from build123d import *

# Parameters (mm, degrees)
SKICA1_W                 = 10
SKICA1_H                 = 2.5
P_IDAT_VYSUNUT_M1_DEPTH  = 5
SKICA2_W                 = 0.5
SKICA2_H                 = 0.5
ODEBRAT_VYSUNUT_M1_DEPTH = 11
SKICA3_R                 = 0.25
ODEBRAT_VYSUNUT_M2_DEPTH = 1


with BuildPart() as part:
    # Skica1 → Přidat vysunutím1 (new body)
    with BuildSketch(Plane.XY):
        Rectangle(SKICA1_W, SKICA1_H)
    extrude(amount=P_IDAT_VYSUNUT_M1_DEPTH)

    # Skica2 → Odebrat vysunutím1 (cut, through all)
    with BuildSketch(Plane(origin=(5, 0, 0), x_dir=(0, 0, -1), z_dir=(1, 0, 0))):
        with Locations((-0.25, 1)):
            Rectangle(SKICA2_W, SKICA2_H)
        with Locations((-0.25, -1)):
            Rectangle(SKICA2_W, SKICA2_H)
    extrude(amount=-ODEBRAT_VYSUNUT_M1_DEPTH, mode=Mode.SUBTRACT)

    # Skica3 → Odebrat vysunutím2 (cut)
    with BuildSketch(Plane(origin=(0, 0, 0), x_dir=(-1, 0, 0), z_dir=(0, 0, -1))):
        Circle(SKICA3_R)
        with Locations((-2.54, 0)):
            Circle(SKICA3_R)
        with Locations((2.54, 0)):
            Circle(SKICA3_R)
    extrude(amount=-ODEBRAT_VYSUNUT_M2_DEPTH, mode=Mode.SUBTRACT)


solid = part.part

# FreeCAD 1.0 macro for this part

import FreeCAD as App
import Part
import Sketcher

V = App.Vector
Q = App.Units.Quantity


def add_polygon(sketch, points):
    """Adds a closed chain of lines whose ends are joined by coincident constraints."""
    first, n = sketch.GeometryCount, len(points)
    for a, b in zip(points, points[1:] + points[:1]):
        sketch.addGeometry(Part.LineSegment(App.Vector(*a, 0), App.Vector(*b, 0)), False)
    for i in range(n):
        sketch.addConstraint(Sketcher.Constraint("Coincident", first + i, 2, first + (i + 1) % n, 1))

doc = App.newDocument("Part")
params = doc.addObject("Spreadsheet::Sheet", "Params")
for row, (alias, value) in enumerate([
    ("sketch1_width", "10 mm"),
    ("sketch1_height", "2.5 mm"),
    ("pad1_length", "5 mm"),
    ("sketch2_width", "0.5 mm"),
    ("sketch3_diameter", "0.5 mm"),
    ("pocket2_length", "1 mm"),
], start=1):
    params.set(f"A{row}", alias)
    params.set(f"B{row}", "=" + value)
    params.setAlias(f"B{row}", alias)

body = doc.addObject("PartDesign::Body", "Body")

# Sketch on XY plane
sketch1 = body.newObject("Sketcher::SketchObject", "Sketch")
sketch1.AttachmentSupport = (doc.getObject("XY_Plane"), [""])
sketch1.MapMode = "FlatFace"
add_polygon(sketch1, [(-5, 1.25), (-5, -1.25), (5, -1.25), (5, 1.25)])  # lines 0-3
sketch1.addConstraint([
    Sketcher.Constraint("Vertical", 0),
    Sketcher.Constraint("Horizontal", 1),
    Sketcher.Constraint("Vertical", 2),
    Sketcher.Constraint("Horizontal", 3),
    Sketcher.Constraint("Symmetric", 0, 2, 2, 2, -1, 1),
    Sketcher.Constraint("DistanceX", 1, 1, 1, 2, Q("10 mm")),
    Sketcher.Constraint("DistanceY", 0, 2, 0, 1, Q("2.5 mm")),
])
sketch1.setExpression("Constraints[9]", "Params.sketch1_width")
sketch1.setExpression("Constraints[10]", "Params.sketch1_height")
pad1 = body.newObject("PartDesign::Pad", "Pad")
pad1.Profile = sketch1
pad1.setExpression("Length", "Params.pad1_length")

# Sketch on YZ plane
sketch2 = body.newObject("Sketcher::SketchObject", "Sketch001")
sketch2.AttachmentSupport = (doc.getObject("YZ_Plane"), [""])
sketch2.MapMode = "FlatFace"
sketch2.AttachmentOffset = App.Placement(V(0, 0, 5), App.Rotation())
add_polygon(sketch2, [(1.25, 0.5), (0.75, 0.5), (0.75, 0), (1.25, 0)])  # lines 0-3
add_polygon(sketch2, [(-0.75, 0.5), (-1.25, 0.5), (-1.25, 0), (-0.75, 0)])  # lines 4-7
sketch2.addConstraint([
    Sketcher.Constraint("Horizontal", 0),
    Sketcher.Constraint("Vertical", 1),
    Sketcher.Constraint("Horizontal", 2),
    Sketcher.Constraint("Vertical", 3),
    Sketcher.Constraint("Horizontal", 4),
    Sketcher.Constraint("Vertical", 5),
    Sketcher.Constraint("Horizontal", 6),
    Sketcher.Constraint("Vertical", 7),
    Sketcher.Constraint("Symmetric", 2, 2, 5, 2, -1, 1),
    Sketcher.Constraint("Symmetric", 1, 2, 6, 2, -2),
    Sketcher.Constraint("Horizontal", 3, 2, 4, 2),
    Sketcher.Constraint("Equal", 6, 1),
    Sketcher.Constraint("DistanceX", 0, 2, 0, 1, Q("0.5 mm")),
    Sketcher.Constraint("DistanceX", 4, 2, 0, 2, Q("2 mm")),
])
sketch2.setExpression("Constraints[20]", "Params.sketch2_width")
pocket1 = body.newObject("PartDesign::Pocket", "Pocket")
pocket1.Profile = sketch2
pocket1.Type = "ThroughAll"

# Sketch on XY plane
sketch3 = body.newObject("Sketcher::SketchObject", "Sketch002")
sketch3.AttachmentSupport = (doc.getObject("XY_Plane"), [""])
sketch3.MapMode = "FlatFace"
sketch3.addGeometry([
    Part.Circle(V(0, 0, 0), V(0, 0, 1), 0.25),
    Part.Circle(V(2.54, 0, 0), V(0, 0, 1), 0.25),
    Part.Circle(V(-2.54, 0, 0), V(0, 0, 1), 0.25),
], False)
sketch3.addConstraint([
    Sketcher.Constraint("Coincident", 0, 3, -1, 1),
    Sketcher.Constraint("Equal", 0, 1),
    Sketcher.Constraint("Equal", 1, 2),
    Sketcher.Constraint("Symmetric", 1, 3, 2, 3, -1, 1),
    Sketcher.Constraint("PointOnObject", 1, 3, -1),
    Sketcher.Constraint("Diameter", 0, Q("0.5 mm")),
    Sketcher.Constraint("DistanceX", -1, 1, 1, 3, Q("2.54 mm")),
])
sketch3.setExpression("Constraints[5]", "Params.sketch3_diameter")
pocket2 = body.newObject("PartDesign::Pocket", "Pocket001")
pocket2.Profile = sketch3
pocket2.setExpression("Length", "Params.pocket2_length")
pocket2.Reversed = True

doc.recompute()
